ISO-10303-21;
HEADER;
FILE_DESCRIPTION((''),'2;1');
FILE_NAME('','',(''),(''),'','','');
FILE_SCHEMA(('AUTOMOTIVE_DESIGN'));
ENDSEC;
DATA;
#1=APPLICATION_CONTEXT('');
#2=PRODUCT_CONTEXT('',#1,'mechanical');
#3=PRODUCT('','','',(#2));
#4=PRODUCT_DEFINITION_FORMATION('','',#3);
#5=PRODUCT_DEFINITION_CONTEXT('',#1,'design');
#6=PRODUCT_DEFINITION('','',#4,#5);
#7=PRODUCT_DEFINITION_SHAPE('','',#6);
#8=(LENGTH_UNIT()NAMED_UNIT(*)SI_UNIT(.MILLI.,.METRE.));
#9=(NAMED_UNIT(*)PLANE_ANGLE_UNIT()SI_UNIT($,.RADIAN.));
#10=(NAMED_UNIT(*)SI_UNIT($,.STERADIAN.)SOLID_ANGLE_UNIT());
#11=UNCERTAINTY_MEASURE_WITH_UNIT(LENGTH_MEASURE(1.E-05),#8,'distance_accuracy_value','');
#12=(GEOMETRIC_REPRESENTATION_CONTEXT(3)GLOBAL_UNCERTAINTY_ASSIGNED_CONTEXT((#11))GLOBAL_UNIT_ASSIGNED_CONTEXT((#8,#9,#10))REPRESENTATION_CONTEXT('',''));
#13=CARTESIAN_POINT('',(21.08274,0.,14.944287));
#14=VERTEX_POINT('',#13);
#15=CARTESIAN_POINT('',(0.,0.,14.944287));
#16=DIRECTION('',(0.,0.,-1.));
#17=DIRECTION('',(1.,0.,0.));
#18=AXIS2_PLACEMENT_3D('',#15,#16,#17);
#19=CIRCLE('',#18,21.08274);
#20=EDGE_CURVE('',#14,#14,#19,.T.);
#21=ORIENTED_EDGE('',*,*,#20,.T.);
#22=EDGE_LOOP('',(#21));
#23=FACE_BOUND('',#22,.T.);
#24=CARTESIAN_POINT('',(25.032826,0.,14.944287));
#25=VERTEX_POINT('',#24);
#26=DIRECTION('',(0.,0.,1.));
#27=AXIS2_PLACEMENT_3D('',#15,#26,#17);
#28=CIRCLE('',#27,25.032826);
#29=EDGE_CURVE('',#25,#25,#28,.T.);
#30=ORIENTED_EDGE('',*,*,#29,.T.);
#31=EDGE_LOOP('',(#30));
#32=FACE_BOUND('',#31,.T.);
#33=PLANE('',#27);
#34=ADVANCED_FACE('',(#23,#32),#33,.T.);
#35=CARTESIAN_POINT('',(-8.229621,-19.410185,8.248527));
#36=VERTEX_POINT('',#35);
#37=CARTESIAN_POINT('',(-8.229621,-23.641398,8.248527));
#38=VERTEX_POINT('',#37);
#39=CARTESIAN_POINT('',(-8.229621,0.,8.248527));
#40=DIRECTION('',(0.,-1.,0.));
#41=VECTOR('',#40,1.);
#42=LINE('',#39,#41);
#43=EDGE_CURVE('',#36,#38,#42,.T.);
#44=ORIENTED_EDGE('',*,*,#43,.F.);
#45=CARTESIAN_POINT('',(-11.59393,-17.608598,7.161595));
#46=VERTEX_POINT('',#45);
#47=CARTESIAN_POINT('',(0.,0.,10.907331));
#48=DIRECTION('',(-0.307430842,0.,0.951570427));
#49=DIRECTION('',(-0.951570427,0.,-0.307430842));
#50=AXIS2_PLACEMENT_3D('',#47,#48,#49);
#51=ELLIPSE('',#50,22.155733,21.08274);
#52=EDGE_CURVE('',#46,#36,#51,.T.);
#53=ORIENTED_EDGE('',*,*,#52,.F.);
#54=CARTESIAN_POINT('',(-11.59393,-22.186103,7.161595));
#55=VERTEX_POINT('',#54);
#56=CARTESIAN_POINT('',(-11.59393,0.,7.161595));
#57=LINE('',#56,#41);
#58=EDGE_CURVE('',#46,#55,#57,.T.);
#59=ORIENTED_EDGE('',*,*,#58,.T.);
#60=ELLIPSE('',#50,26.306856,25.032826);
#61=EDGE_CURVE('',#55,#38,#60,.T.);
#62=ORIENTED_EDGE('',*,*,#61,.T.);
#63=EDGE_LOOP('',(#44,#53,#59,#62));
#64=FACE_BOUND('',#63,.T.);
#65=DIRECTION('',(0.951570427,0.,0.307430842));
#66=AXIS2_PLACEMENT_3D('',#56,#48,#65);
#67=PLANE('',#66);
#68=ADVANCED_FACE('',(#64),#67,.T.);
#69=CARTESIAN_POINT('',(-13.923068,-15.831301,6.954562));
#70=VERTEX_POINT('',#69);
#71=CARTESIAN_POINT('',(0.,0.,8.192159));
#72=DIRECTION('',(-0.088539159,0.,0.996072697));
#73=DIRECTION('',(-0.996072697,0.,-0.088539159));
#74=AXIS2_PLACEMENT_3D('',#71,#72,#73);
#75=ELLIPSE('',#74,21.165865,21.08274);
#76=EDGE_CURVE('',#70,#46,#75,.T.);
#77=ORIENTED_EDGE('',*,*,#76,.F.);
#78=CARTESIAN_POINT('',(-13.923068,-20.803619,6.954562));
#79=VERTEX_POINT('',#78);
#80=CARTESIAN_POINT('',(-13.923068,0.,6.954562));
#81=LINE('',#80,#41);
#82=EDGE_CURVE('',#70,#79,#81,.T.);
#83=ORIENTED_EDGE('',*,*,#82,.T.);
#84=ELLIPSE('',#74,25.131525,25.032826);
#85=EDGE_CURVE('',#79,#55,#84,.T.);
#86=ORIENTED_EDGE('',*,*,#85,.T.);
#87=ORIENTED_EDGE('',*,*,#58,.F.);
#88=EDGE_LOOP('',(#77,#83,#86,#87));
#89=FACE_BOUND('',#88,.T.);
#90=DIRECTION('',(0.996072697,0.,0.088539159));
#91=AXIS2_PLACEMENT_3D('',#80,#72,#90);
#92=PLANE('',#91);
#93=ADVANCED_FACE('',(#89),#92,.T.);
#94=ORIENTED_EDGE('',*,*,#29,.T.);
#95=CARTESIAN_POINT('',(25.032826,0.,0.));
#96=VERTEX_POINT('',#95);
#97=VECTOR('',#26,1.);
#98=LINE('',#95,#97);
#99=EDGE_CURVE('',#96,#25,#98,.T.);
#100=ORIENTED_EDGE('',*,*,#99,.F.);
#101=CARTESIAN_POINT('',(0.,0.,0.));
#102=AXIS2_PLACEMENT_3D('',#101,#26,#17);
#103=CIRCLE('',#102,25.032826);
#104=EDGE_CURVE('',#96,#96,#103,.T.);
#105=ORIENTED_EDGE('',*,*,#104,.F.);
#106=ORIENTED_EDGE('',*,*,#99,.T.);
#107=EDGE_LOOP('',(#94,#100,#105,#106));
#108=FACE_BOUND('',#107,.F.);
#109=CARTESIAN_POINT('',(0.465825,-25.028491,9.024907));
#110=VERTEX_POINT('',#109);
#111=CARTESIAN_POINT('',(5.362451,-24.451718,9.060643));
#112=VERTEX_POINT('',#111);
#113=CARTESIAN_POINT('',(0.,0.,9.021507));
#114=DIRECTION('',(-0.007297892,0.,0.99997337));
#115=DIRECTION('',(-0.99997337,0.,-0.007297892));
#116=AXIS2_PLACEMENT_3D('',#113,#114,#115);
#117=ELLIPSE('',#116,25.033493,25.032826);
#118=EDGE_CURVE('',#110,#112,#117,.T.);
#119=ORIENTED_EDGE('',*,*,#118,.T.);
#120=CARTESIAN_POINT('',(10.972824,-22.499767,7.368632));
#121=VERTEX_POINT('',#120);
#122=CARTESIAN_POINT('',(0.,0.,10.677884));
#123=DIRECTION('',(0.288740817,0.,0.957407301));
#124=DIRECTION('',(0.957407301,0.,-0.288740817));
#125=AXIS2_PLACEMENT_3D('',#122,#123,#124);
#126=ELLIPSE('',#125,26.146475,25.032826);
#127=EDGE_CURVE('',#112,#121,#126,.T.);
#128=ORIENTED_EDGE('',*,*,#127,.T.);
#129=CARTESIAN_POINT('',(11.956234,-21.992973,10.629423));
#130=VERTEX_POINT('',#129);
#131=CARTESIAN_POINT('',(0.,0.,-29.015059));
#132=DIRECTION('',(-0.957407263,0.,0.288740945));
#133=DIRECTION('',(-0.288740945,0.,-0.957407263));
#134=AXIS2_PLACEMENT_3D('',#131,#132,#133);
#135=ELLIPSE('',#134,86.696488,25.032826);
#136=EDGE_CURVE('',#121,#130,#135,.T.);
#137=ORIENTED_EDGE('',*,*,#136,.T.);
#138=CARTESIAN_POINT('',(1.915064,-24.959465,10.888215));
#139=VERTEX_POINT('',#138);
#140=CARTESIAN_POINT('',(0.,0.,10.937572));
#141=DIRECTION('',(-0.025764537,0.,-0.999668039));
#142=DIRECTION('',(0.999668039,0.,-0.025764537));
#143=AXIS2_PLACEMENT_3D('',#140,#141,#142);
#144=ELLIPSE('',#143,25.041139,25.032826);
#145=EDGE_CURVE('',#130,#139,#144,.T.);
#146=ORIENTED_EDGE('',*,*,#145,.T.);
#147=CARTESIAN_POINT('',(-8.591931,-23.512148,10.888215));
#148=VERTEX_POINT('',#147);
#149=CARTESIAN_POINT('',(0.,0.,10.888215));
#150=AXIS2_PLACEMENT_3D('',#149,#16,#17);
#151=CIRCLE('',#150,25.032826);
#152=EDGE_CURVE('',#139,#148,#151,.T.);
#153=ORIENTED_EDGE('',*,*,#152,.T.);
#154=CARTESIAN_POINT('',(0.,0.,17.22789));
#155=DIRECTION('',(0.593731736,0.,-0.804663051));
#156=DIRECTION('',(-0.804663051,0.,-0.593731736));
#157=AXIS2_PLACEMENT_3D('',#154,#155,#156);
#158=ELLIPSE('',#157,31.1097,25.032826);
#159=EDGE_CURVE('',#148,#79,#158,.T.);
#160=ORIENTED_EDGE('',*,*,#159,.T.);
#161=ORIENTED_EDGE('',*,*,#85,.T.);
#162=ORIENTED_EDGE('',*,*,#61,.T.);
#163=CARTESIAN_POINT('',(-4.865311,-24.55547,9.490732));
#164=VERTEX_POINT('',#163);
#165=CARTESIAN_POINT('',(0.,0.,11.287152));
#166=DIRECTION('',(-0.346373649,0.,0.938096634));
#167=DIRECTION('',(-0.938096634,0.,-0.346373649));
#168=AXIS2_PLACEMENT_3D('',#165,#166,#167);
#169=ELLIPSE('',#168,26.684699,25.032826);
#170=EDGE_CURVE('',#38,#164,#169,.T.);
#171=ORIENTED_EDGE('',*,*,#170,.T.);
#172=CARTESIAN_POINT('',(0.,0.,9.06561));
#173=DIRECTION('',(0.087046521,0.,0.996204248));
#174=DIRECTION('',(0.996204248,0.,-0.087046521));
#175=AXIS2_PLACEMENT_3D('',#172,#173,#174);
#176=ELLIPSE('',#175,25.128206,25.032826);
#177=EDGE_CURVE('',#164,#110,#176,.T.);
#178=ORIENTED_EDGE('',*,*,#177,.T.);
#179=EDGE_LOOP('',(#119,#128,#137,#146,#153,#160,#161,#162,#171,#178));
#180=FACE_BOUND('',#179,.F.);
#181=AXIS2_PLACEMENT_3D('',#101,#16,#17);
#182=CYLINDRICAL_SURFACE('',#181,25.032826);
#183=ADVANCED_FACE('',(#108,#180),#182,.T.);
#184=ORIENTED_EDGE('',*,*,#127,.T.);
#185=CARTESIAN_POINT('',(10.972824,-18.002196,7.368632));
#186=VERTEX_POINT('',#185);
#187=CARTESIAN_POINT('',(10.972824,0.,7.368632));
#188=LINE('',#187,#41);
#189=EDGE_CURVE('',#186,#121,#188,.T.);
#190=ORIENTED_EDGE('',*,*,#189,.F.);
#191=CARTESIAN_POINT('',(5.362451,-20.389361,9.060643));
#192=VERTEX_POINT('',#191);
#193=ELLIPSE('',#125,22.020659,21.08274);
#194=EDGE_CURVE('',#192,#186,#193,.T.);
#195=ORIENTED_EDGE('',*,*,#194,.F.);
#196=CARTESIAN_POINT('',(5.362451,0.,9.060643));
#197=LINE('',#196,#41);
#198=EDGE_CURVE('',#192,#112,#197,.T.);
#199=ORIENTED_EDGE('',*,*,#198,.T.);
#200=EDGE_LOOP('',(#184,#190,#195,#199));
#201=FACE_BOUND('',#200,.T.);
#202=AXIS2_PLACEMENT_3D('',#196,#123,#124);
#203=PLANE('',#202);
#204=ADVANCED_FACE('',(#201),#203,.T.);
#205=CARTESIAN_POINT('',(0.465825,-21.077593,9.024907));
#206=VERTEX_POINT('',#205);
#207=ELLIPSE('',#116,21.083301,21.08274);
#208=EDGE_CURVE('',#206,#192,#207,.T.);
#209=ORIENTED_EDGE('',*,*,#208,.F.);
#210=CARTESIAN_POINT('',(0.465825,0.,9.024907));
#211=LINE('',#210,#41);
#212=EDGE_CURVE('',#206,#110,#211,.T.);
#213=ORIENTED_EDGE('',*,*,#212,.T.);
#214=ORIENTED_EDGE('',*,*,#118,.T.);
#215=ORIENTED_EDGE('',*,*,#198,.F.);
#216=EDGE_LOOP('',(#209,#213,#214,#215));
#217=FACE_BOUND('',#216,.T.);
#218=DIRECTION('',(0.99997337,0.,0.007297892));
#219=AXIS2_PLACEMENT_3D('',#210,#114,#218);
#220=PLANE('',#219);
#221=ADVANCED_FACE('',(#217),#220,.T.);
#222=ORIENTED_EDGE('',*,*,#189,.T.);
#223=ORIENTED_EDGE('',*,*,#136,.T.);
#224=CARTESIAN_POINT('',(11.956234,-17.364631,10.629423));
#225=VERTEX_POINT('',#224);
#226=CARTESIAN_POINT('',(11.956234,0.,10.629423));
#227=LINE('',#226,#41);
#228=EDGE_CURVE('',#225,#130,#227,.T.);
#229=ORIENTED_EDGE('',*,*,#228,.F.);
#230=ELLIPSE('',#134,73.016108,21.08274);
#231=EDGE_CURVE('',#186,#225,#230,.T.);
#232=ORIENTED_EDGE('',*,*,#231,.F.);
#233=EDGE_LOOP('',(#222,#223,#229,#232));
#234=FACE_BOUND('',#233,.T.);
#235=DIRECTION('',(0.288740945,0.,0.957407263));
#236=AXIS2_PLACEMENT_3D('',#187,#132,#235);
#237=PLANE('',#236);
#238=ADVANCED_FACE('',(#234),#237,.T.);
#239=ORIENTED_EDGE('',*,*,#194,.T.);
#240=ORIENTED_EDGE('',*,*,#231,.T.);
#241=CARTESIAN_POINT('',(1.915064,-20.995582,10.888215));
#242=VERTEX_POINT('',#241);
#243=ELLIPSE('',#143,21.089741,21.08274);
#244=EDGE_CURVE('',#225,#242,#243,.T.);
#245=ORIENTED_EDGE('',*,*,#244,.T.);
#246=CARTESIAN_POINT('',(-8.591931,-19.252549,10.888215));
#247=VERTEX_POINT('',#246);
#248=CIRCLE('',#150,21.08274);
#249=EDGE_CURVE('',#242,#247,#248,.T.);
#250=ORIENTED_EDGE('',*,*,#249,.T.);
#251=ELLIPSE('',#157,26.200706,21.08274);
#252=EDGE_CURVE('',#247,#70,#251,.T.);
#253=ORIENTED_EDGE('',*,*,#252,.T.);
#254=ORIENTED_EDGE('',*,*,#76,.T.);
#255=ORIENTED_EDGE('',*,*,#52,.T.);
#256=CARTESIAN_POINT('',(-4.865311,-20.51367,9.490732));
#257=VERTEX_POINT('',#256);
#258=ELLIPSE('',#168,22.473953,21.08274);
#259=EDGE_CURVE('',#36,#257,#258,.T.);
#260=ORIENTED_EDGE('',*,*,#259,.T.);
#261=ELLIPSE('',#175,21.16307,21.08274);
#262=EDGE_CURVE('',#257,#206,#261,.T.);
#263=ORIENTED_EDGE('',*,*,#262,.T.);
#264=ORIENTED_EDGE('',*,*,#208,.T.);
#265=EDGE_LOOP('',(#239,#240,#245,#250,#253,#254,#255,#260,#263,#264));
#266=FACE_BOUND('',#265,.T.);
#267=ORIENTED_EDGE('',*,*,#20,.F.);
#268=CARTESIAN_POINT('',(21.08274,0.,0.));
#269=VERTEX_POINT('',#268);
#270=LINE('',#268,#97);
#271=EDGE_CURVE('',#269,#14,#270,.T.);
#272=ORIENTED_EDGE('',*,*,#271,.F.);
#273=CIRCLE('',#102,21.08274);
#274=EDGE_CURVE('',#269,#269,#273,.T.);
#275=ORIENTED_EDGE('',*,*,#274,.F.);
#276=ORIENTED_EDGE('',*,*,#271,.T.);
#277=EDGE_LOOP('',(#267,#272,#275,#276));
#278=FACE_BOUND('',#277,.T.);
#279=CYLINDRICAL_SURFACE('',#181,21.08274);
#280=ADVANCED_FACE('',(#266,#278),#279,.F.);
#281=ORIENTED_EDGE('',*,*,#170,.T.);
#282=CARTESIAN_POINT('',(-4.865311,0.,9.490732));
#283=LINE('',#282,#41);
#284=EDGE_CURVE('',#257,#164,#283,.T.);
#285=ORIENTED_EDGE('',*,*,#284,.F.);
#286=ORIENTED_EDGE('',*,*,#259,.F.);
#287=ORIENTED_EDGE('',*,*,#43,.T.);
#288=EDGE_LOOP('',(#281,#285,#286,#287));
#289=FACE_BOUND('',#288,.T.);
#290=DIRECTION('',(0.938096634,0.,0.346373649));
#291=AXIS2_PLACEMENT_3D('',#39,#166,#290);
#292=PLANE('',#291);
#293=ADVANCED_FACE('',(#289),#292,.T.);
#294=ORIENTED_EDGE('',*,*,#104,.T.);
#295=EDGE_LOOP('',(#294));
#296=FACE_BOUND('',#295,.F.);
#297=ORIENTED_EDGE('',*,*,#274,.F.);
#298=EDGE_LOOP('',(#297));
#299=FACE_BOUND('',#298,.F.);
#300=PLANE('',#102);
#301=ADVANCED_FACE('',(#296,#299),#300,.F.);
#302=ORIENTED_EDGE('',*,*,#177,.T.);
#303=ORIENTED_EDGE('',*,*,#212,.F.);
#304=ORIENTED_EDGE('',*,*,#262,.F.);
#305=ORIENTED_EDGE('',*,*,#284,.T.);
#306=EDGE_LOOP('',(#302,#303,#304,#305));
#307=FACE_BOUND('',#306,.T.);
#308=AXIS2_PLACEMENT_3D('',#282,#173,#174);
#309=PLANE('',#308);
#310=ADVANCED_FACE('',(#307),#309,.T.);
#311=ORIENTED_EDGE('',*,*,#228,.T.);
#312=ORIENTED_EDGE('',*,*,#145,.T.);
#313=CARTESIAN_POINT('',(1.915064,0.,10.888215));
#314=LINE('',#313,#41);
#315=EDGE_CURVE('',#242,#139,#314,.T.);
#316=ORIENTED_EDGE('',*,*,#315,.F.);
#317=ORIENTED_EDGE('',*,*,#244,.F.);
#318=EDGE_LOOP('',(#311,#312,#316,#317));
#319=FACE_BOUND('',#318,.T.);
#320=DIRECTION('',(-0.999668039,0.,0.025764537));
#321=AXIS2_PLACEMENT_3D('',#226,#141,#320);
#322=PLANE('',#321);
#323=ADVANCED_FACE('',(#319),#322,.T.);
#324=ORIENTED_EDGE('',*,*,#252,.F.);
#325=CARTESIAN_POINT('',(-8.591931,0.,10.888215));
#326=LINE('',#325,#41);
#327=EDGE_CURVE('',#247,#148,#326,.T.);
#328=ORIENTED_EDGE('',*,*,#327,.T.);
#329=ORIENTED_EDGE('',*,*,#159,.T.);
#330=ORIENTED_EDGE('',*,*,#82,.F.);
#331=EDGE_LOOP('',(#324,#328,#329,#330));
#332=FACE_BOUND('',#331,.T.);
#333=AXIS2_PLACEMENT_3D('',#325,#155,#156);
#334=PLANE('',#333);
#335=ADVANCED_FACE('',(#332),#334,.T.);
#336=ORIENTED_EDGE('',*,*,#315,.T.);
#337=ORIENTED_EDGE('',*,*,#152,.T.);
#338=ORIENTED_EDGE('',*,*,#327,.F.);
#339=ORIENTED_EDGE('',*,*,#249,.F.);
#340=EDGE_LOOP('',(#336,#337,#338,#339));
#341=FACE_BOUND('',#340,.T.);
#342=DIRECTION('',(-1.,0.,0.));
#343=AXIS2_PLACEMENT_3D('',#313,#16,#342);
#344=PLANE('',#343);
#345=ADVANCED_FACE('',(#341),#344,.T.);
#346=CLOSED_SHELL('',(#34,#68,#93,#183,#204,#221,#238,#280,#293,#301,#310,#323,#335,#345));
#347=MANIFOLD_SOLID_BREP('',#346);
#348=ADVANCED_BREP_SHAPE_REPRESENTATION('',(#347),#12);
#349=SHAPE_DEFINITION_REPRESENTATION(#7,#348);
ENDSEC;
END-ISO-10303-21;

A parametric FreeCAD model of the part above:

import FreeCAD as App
import Part
import Sketcher
from FreeCAD import Vector
Q = App.Units.Quantity


def add_polygon(sketch, points):
    """Adds a closed chain of lines whose ends are joined by coincident constraints."""
    first, n = sketch.GeometryCount, len(points)
    for a, b in zip(points, points[1:] + points[:1]):
        sketch.addGeometry(Part.LineSegment(App.Vector(*a, 0), App.Vector(*b, 0)), False)
    for i in range(n):
        sketch.addConstraint(Sketcher.Constraint("Coincident", first + i, 2, first + (i + 1) % n, 1))

doc = App.newDocument("Part")
body = doc.addObject("PartDesign::Body", "Body")

sketch1 = body.newObject("Sketcher::SketchObject", "Sketch")
sketch1.AttachmentSupport = (doc.getObject("XY_Plane"), [""])
sketch1.MapMode = "FlatFace"
sketch1.addGeometry(Part.Circle(Vector(0, 0, 0), Vector(0, 0, 1), 25), False)
sketch1.addConstraint(Sketcher.Constraint("Coincident", 0, 3, -1, 1))
sketch1.addConstraint(Sketcher.Constraint("Diameter", 0, Q("50.065652 mm")))
pad1 = body.newObject("PartDesign::Pad", "Pad")
pad1.Profile = sketch1
pad1.Length = 14.944287

sketch2 = body.newObject("Sketcher::SketchObject", "Sketch001")
sketch2.AttachmentSupport = (doc.getObject("XY_Plane"), [""])
sketch2.MapMode = "FlatFace"
sketch2.addGeometry(Part.Circle(Vector(0, 0, 0), Vector(0, 0, 1), 21), False)
sketch2.addConstraint(Sketcher.Constraint("Coincident", 0, 3, -1, 1))
sketch2.addConstraint(Sketcher.Constraint("Diameter", 0, Q("42.16548 mm")))
pocket1 = body.newObject("PartDesign::Pocket", "Pocket")
pocket1.Profile = sketch2
pocket1.Length = 20.706544
pocket1.Reversed = True

sketch3 = body.newObject("Sketcher::SketchObject", "Sketch002")
sketch3.AttachmentSupport = (doc.getObject("XZ_Plane"), [""])
sketch3.MapMode = "FlatFace"
add_polygon(sketch3, [(-8.6, 10.9), (-13.9, 7), (-11.6, 7.2), (-8.2, 8.2), (-4.9, 9.5), (0.5, 9), (5.4, 9.1), (11, 7.4), (12, 10.6), (1.9, 10.9)])
sketch3.addConstraint(Sketcher.Constraint("Horizontal", 9))
sketch3.addConstraint(Sketcher.Constraint("Perpendicular", 6, 7))
sketch3.addConstraint(Sketcher.Constraint("DistanceX", 4, 2, 6, 2, Q("10.506999 mm")))
sketch3.addConstraint(Sketcher.Constraint("DistanceY", 6, 2, 3, 2, Q("2.1221 mm")))
sketch3.addConstraint(Sketcher.Constraint("DistanceX", 1, 2, 9, 2, Q("3.001999 mm")))
sketch3.addConstraint(Sketcher.Constraint("Distance", 1, Q("2.338321 mm")))
sketch3.addConstraint(Sketcher.Constraint("Distance", 4, Q("5.351449 mm")))
sketch3.addConstraint(Sketcher.Constraint("DistanceX", 9, 2, 9, 1, Q("10.506995 mm")))
sketch3.addConstraint(Sketcher.Constraint("DistanceX", 0, 2, -1, 1, Q("13.923068 mm")))
sketch3.addConstraint(Sketcher.Constraint("DistanceX", 1, 2, -1, 1, Q("11.59393 mm")))
sketch3.addConstraint(Sketcher.Constraint("DistanceX", 2, 2, -1, 1, Q("8.229621 mm")))
sketch3.addConstraint(Sketcher.Constraint("DistanceX", 3, 2, -1, 1, Q("4.865311 mm")))
sketch3.addConstraint(Sketcher.Constraint("DistanceX", -1, 1, 5, 2, Q("5.362451 mm")))
sketch3.addConstraint(Sketcher.Constraint("DistanceY", 1, 2, 2, 2, Q("1.086932 mm")))
sketch3.addConstraint(Sketcher.Constraint("DistanceY", 0, 2, 3, 2, Q("2.53617 mm")))
sketch3.addConstraint(Sketcher.Constraint("DistanceY", 2, 2, 4, 2, Q("0.77638 mm")))
sketch3.addConstraint(Sketcher.Constraint("DistanceY", 5, 2, 3, 2, Q("0.430089 mm")))
sketch3.addConstraint(Sketcher.Constraint("DistanceX", 6, 2, 7, 2, Q("0.98341 mm")))
sketch3.addConstraint(Sketcher.Constraint("DistanceY", 2, 2, 9, 2, Q("2.639688 mm")))
sketch3.addConstraint(Sketcher.Constraint("DistanceY", -1, 1, 0, 2, Q("6.954562 mm")))
pocket2 = body.newObject("PartDesign::Pocket", "Pocket001")
pocket2.Profile = sketch3
pocket2.Length = Q("1 in")
pocket2.Reversed = True

doc.recompute()
